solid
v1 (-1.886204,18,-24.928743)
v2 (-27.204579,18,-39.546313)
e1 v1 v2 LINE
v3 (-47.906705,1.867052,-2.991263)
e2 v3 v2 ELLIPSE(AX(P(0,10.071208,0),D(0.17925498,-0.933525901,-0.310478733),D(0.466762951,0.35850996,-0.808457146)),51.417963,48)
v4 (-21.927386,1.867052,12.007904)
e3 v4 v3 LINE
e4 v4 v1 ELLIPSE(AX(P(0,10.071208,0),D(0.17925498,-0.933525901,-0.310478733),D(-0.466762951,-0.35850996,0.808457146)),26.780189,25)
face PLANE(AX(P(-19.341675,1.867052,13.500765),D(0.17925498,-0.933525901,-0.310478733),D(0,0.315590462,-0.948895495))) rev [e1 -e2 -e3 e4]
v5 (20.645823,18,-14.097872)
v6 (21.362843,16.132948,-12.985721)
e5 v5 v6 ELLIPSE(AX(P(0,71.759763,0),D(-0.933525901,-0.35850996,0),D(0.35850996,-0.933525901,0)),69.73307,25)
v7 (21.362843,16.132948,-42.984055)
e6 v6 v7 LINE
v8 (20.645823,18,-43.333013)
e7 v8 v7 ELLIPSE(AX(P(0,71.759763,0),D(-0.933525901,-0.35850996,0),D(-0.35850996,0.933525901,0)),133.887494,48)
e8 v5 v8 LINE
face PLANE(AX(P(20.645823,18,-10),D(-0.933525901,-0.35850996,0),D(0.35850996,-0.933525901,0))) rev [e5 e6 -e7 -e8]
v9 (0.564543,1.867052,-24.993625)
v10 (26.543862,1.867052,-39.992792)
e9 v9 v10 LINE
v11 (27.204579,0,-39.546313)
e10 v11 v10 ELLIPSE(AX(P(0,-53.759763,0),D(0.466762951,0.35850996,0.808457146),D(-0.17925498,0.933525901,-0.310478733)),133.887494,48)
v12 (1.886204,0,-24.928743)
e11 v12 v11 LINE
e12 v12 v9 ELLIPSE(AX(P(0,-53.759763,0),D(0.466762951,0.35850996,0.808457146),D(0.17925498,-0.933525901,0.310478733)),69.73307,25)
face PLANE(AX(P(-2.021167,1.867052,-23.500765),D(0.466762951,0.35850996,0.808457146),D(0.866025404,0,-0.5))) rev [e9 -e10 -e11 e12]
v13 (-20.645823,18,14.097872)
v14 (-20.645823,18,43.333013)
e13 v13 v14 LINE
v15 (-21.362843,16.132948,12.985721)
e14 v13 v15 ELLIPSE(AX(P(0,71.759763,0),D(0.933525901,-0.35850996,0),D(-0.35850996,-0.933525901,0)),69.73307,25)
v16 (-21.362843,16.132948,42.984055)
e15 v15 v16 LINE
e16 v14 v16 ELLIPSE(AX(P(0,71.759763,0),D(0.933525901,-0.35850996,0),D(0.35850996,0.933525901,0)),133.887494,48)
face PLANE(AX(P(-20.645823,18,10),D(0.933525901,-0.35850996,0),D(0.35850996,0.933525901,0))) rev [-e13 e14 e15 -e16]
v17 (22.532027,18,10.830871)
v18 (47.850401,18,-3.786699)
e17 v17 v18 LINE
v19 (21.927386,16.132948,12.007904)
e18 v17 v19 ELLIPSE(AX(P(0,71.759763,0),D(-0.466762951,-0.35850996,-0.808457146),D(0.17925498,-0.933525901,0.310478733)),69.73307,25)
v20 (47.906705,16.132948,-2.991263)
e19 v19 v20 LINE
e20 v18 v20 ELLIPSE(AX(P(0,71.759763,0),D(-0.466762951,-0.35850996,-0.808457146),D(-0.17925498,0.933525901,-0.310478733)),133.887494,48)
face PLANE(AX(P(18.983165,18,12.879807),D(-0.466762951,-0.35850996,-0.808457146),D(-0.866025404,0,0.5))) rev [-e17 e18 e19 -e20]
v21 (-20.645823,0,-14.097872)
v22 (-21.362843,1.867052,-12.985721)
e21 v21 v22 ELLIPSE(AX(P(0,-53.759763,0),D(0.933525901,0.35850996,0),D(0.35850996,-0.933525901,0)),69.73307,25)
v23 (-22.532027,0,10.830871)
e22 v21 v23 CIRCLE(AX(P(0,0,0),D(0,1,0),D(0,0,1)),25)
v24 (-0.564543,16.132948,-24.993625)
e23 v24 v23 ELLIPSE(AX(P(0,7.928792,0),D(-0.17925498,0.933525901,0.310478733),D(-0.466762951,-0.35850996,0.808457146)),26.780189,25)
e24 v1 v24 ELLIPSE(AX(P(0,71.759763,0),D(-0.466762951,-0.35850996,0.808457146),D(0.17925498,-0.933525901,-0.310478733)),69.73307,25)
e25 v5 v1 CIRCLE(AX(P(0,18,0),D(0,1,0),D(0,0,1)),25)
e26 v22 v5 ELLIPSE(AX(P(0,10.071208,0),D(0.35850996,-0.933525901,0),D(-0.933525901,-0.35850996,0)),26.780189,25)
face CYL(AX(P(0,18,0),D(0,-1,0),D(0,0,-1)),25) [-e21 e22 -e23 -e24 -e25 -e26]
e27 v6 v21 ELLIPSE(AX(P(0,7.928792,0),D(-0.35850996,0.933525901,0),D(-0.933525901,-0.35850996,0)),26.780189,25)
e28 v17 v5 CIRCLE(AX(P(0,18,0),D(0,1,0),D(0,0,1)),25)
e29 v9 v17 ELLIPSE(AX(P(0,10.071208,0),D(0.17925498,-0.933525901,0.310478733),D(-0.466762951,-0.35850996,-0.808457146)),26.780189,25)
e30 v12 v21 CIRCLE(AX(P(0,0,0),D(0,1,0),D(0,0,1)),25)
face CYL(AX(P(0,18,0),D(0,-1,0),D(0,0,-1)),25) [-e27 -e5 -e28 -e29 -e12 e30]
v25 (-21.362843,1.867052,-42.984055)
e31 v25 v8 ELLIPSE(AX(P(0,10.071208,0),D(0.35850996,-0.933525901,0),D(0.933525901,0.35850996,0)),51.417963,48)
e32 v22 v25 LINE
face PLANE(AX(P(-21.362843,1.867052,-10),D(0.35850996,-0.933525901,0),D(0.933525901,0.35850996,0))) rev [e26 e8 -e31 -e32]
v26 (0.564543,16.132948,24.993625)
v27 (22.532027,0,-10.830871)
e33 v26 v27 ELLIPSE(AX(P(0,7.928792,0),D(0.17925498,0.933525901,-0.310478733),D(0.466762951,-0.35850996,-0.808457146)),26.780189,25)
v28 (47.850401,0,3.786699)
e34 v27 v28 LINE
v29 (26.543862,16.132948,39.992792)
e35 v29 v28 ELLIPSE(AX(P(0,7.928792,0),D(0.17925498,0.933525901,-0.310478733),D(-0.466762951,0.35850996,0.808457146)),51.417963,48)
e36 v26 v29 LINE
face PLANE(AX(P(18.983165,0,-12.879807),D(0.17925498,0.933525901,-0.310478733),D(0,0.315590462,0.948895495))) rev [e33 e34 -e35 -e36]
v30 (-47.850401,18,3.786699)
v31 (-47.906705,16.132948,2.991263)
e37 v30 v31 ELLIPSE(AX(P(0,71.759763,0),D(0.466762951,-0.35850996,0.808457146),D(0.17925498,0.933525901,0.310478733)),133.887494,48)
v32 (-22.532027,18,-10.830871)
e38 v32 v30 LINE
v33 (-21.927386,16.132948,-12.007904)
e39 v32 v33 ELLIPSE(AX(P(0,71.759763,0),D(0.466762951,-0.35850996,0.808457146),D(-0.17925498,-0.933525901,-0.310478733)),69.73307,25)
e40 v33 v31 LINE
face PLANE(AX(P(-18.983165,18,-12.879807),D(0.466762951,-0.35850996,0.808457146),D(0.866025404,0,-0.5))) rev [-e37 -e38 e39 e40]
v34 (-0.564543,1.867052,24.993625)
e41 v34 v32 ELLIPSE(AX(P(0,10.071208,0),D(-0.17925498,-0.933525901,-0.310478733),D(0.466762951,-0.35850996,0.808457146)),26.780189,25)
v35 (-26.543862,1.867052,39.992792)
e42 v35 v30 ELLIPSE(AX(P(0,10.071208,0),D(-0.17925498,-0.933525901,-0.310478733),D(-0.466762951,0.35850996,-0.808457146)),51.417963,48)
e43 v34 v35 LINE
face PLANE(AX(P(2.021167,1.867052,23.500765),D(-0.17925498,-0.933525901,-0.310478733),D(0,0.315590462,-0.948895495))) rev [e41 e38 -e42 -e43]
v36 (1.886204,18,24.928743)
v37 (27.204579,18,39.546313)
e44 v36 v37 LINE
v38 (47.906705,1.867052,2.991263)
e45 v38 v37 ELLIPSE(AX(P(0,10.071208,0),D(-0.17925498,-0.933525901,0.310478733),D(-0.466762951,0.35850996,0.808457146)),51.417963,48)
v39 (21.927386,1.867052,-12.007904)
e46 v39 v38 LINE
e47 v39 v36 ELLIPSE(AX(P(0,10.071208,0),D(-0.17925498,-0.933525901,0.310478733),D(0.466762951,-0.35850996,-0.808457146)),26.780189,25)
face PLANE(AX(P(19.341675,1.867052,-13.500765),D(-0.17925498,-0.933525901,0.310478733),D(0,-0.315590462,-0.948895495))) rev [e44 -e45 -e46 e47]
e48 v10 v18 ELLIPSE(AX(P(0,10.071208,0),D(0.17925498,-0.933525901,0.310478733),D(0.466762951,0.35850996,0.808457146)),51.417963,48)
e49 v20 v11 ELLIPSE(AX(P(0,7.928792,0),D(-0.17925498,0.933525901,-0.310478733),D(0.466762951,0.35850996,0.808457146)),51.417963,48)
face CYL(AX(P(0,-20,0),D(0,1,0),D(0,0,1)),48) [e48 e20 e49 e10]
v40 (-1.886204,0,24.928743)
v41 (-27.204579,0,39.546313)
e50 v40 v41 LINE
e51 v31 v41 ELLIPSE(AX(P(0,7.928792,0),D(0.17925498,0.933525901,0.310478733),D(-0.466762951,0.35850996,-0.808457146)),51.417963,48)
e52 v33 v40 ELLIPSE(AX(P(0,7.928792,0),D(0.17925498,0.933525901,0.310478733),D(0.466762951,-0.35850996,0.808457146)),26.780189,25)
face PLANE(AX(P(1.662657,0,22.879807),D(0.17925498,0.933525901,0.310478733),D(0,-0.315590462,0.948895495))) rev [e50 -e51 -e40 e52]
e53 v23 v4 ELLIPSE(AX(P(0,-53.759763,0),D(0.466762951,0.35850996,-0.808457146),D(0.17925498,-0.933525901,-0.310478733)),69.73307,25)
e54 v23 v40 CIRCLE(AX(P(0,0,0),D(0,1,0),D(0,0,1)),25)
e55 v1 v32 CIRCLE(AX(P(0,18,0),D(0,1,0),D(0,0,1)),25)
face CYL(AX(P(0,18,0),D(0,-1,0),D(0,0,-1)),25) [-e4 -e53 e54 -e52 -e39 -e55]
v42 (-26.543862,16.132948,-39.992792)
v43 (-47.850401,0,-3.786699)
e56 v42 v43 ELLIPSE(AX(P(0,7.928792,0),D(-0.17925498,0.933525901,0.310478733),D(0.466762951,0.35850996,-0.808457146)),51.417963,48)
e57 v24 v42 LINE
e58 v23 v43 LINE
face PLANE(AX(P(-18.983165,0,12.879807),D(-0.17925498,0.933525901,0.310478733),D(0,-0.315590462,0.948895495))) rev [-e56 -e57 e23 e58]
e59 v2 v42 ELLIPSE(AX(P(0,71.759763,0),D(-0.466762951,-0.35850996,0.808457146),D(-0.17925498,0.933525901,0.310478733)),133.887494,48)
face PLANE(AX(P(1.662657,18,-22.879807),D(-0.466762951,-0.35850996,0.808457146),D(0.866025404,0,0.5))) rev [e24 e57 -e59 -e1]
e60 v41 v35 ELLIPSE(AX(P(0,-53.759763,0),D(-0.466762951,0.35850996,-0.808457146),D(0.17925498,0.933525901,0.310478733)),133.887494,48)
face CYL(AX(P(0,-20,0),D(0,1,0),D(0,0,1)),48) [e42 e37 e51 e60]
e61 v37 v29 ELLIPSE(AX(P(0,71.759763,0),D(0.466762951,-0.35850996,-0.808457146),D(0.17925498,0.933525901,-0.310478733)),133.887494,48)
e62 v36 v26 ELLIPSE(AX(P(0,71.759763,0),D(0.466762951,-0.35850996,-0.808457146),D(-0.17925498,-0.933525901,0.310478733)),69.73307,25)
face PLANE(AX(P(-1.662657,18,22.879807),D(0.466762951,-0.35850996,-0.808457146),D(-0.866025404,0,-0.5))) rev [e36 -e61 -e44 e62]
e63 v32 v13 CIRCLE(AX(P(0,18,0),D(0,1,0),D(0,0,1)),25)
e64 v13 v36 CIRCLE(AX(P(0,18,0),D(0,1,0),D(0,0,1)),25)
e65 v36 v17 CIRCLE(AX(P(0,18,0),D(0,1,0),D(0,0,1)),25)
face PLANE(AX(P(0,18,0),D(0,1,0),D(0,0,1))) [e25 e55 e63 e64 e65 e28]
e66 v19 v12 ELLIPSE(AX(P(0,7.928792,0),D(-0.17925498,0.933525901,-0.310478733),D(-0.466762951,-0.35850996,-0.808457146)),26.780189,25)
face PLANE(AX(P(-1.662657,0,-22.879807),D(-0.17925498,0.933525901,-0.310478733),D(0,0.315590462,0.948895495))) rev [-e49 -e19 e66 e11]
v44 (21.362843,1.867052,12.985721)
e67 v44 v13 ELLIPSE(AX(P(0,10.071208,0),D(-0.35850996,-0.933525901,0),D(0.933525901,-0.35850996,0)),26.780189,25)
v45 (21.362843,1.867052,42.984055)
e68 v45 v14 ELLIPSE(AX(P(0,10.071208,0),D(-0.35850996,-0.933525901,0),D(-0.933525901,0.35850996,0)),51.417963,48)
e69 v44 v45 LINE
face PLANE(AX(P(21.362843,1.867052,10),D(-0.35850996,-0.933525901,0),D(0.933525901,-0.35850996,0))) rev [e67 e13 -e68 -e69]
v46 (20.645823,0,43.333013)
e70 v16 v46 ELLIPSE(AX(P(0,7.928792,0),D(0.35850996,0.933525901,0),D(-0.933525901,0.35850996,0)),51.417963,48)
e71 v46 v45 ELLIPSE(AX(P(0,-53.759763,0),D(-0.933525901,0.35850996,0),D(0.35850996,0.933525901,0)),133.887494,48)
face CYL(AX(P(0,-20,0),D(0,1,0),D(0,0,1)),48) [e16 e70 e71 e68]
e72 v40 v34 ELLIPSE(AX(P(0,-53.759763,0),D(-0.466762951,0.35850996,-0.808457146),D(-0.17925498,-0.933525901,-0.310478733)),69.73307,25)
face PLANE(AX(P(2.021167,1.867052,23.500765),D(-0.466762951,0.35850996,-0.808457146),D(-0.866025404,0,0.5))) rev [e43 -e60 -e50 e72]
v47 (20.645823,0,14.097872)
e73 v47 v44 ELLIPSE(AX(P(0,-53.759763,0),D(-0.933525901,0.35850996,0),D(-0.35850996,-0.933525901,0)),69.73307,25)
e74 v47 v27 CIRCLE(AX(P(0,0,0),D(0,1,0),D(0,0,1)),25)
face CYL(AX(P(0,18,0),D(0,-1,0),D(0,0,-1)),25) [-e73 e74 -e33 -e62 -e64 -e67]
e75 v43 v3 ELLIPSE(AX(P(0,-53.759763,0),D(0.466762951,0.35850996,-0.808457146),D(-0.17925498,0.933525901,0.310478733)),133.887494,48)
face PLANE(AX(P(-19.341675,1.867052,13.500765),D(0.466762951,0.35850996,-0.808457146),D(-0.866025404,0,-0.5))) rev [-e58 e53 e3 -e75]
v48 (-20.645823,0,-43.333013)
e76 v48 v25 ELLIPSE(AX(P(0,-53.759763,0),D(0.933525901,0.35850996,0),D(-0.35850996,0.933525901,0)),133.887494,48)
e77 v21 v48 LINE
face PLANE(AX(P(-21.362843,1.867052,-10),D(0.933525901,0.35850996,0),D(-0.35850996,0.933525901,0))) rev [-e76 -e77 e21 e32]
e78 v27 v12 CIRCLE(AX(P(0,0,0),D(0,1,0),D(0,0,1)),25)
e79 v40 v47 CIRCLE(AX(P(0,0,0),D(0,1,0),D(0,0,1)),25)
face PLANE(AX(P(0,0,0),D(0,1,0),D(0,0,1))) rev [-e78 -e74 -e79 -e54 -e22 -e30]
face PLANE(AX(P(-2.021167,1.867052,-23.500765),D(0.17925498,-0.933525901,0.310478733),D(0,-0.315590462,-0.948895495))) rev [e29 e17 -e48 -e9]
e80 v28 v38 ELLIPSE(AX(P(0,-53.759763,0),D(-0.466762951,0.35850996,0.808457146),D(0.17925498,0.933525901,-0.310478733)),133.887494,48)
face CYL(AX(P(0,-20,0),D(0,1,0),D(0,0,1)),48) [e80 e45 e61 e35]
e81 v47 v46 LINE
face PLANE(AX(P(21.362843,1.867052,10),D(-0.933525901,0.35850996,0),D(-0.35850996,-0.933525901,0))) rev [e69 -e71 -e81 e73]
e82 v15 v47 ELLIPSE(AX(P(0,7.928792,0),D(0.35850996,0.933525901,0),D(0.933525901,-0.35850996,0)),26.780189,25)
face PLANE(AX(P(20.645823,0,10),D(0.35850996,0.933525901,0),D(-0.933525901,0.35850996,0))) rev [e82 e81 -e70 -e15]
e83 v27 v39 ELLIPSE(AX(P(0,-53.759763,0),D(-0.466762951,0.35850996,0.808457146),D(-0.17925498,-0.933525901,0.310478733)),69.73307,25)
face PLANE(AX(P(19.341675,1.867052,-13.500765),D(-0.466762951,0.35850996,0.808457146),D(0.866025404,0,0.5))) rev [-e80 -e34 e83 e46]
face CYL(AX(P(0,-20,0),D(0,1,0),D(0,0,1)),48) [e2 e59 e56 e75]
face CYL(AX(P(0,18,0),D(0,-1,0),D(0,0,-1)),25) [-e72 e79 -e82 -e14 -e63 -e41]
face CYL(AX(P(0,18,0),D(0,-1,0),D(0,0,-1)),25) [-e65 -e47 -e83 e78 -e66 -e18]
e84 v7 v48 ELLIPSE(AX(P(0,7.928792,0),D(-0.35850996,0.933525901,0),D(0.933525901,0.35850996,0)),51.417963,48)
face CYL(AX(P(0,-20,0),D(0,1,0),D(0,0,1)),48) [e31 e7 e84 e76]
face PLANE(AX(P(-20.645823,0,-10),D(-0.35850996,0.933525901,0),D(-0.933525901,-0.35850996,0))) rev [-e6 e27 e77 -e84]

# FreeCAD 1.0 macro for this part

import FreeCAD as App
import Part
import Sketcher


def add_polygon(sketch, points):
    """Adds a closed chain of lines whose ends are joined by coincident constraints."""
    first, n = sketch.GeometryCount, len(points)
    for a, b in zip(points, points[1:] + points[:1]):
        sketch.addGeometry(Part.LineSegment(App.Vector(*a, 0), App.Vector(*b, 0)), False)
    for i in range(n):
        sketch.addConstraint(Sketcher.Constraint("Coincident", first + i, 2, first + (i + 1) % n, 1))

doc = App.newDocument("Part")
body = doc.addObject("PartDesign::Body", "Body")

# Sketch on XZ plane
sketch1 = doc.addObject("Sketcher::SketchObject", "Sketch")
body.addObject(sketch1)
sketch1.AttachmentSupport = (doc.XZ_Plane, [""])
sketch1.MapMode = "FlatFace"
sketch1.addGeometry(Part.Circle(App.Vector(0, 0, 0), App.Vector(0, 0, 1), 25), False)
sketch1.addConstraint([
    Sketcher.Constraint("Coincident", 0, 3, -1, 1),
    Sketcher.Constraint("Diameter", 0, 50.0),
])
pad1 = doc.addObject("PartDesign::Pad", "Pad")
body.addObject(pad1)
pad1.Profile = sketch1
pad1.Length = 18
pad1.Reversed = True

# Sketch on XY plane
sketch2 = doc.addObject("Sketcher::SketchObject", "Sketch001")
body.addObject(sketch2)
sketch2.AttachmentSupport = (doc.XY_Plane, [""])
sketch2.MapMode = "FlatFace"
sketch2.AttachmentOffset = App.Placement(App.Vector(0, 0, 48), App.Rotation())
add_polygon(sketch2, [(-20.6, 18), (21.4, 1.9), (20.6, 0), (-21.4, 16.1)])  # lines 0-3
sketch2.addConstraint([
    Sketcher.Constraint("PointOnObject", 1, 2, -1),
    Sketcher.Constraint("Perpendicular", 0, 1),
    Sketcher.Constraint("Perpendicular", 1, 2),
    Sketcher.Constraint("Perpendicular", 2, 3),
    Sketcher.Constraint("Distance", 0, 45.0),
    Sketcher.Constraint("Distance", 1, 2.0),
    Sketcher.Constraint("DistanceY", -1, 1, 3, 2, 18.0),
    Sketcher.Constraint("DistanceX", -1, 1, 0, 2, 21.362843),
])
pad2 = doc.addObject("PartDesign::Pad", "Pad001")
body.addObject(pad2)
pad2.Profile = sketch2
pad2.Length = 38
pad2.Reversed = True
doc.recompute()

polarpattern = doc.addObject("PartDesign::PolarPattern", "PolarPattern")
body.addObject(polarpattern)
polarpattern.Originals = [pad2]
polarpattern.Axis = (doc.Y_Axis, [""])
polarpattern.Angle = 360
polarpattern.Occurrences = 6
body.Tip = polarpattern

# Sketch on XZ plane
sketch3 = doc.addObject("Sketcher::SketchObject", "Sketch002")
body.addObject(sketch3)
sketch3.AttachmentSupport = (doc.XZ_Plane, [""])
sketch3.MapMode = "FlatFace"
sketch3.AttachmentOffset = App.Placement(App.Vector(0, 0, -18), App.Rotation())
sketch3.addGeometry([
    Part.Circle(App.Vector(0, 0, 0), App.Vector(0, 0, 1), 55),
    Part.Circle(App.Vector(0, 0, 0), App.Vector(0, 0, 1), 48),
], False)
sketch3.addConstraint([
    Sketcher.Constraint("Coincident", 0, 3, -1, 1),
    Sketcher.Constraint("Coincident", 1, 3, -1, 1),
    Sketcher.Constraint("Diameter", 1, 96.0),
    Sketcher.Constraint("Diameter", 0, 110.412026),
])
pocket1 = doc.addObject("PartDesign::Pocket", "Pocket")
body.addObject(pocket1)
pocket1.Profile = sketch3
pocket1.Length = 38
pocket1.Reversed = True

doc.recompute()
